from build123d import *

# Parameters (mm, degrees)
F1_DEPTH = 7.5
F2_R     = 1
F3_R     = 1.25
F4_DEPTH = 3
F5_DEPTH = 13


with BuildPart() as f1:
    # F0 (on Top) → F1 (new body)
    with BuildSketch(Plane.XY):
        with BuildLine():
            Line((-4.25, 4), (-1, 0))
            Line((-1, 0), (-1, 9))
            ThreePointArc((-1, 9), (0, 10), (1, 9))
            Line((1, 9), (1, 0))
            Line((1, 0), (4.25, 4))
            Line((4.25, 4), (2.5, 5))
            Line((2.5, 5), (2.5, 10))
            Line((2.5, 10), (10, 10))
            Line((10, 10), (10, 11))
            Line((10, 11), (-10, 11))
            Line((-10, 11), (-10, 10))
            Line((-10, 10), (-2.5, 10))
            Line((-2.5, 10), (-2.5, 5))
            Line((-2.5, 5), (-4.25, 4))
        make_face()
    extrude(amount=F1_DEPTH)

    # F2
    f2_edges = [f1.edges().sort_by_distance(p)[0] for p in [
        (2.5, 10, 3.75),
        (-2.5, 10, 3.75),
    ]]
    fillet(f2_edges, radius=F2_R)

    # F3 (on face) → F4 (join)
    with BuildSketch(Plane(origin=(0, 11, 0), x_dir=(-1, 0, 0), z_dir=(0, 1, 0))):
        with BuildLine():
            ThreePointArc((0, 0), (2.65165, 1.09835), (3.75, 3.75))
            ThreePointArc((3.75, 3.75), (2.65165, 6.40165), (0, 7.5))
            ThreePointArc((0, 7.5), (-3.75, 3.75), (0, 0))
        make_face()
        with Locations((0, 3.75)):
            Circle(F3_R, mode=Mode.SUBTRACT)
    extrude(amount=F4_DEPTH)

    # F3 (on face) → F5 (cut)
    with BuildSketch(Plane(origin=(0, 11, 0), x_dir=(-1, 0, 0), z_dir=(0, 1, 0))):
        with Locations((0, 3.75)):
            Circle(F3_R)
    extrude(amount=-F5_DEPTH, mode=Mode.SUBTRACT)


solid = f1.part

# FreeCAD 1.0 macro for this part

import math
import FreeCAD as App
import Part
import Sketcher

V = App.Vector


def edges_at(feature, points):
    """Names of the edges that pass closest to the given points."""
    edges = feature.Shape.Edges
    near = lambda p: min(range(len(edges)), key=lambda i: edges[i].distToShape(Part.Vertex(*p))[0])
    return sorted({f"Edge{near(p) + 1}" for p in points})

doc = App.newDocument("Part")
body = doc.addObject("PartDesign::Body", "Body")

sketch1 = body.newObject("Sketcher::SketchObject", "Sketch")
sketch1.AttachmentSupport = (doc.getObject("XY_Plane"), [""])
sketch1.MapMode = "FlatFace"
sketch1.addGeometry([
    Part.LineSegment(V(-4.2, 4, 0), V(-1, 0, 0)),
    Part.LineSegment(V(-1, 0, 0), V(-1, 9, 0)),
    Part.ArcOfCircle(Part.Circle(V(0, 9, 0), V(0, 0, 1), 1), math.radians(0), math.radians(180)),
    Part.LineSegment(V(1, 9, 0), V(1, 0, 0)),
    Part.LineSegment(V(1, 0, 0), V(4.2, 4, 0)),
    Part.LineSegment(V(4.2, 4, 0), V(2.5, 5, 0)),
    Part.LineSegment(V(2.5, 5, 0), V(2.5, 10, 0)),
    Part.LineSegment(V(2.5, 10, 0), V(10, 10, 0)),
    Part.LineSegment(V(10, 10, 0), V(10, 11, 0)),
    Part.LineSegment(V(10, 11, 0), V(-10, 11, 0)),
    Part.LineSegment(V(-10, 11, 0), V(-10, 10, 0)),
    Part.LineSegment(V(-10, 10, 0), V(-2.5, 10, 0)),
    Part.LineSegment(V(-2.5, 10, 0), V(-2.5, 5, 0)),
    Part.LineSegment(V(-2.5, 5, 0), V(-4.2, 4, 0)),
], False)
sketch1.addConstraint([
    Sketcher.Constraint("Coincident", 0, 2, 1, 1),
    Sketcher.Constraint("Tangent", 1, 2, 2, 2),
    Sketcher.Constraint("Tangent", 2, 1, 3, 1),
    Sketcher.Constraint("Coincident", 3, 2, 4, 1),
    Sketcher.Constraint("Coincident", 4, 2, 5, 1),
    Sketcher.Constraint("Coincident", 5, 2, 6, 1),
    Sketcher.Constraint("Coincident", 6, 2, 7, 1),
    Sketcher.Constraint("Coincident", 7, 2, 8, 1),
    Sketcher.Constraint("Coincident", 8, 2, 9, 1),
    Sketcher.Constraint("Coincident", 9, 2, 10, 1),
    Sketcher.Constraint("Coincident", 10, 2, 11, 1),
    Sketcher.Constraint("Coincident", 11, 2, 12, 1),
    Sketcher.Constraint("Coincident", 12, 2, 13, 1),
    Sketcher.Constraint("Coincident", 13, 2, 0, 1),
    Sketcher.Constraint("Vertical", 1),
    Sketcher.Constraint("Vertical", 3),
    Sketcher.Constraint("Vertical", 6),
    Sketcher.Constraint("Horizontal", 7),
    Sketcher.Constraint("Vertical", 8),
    Sketcher.Constraint("Horizontal", 9),
    Sketcher.Constraint("Vertical", 10),
    Sketcher.Constraint("Horizontal", 11),
    Sketcher.Constraint("Vertical", 12),
    Sketcher.Constraint("Symmetric", 0, 2, 3, 2, -1, 1),
    Sketcher.Constraint("Symmetric", 7, 2, 10, 2, -2),
    Sketcher.Constraint("Symmetric", 5, 2, 12, 2, -2),
    Sketcher.Constraint("Symmetric", 4, 2, 13, 2, -2),
    Sketcher.Constraint("PointOnObject", 0, 2, -1),
    Sketcher.Constraint("Radius", 2, 1.0),
    Sketcher.Constraint("DistanceX", 9, 2, 9, 1, 20.0),
    Sketcher.Constraint("DistanceY", 1, 1, 1, 2, 9.0),
    Sketcher.Constraint("DistanceY", 6, 1, 6, 2, 5.0),
    Sketcher.Constraint("DistanceY", 8, 1, 8, 2, 1.0),
    Sketcher.Constraint("DistanceX", 7, 1, 7, 2, 7.5),
    Sketcher.Constraint("DistanceY", -1, 1, 4, 2, 4.0),
    Sketcher.Constraint("DistanceY", -1, 1, 5, 2, 5.0),
    Sketcher.Constraint("DistanceX", -1, 1, 4, 2, 4.25),
])
pad1 = body.newObject("PartDesign::Pad", "Pad")
pad1.Profile = sketch1
pad1.Length = 7.5
doc.recompute()

fillet = body.newObject("PartDesign::Fillet", "Fillet")
fillet.Base = (pad1, edges_at(pad1, [(2.5, 10, 3.75), (-2.5, 10, 3.75)]))
fillet.Radius = 1

sketch2 = body.newObject("Sketcher::SketchObject", "Sketch001")
sketch2.AttachmentSupport = (doc.getObject("XZ_Plane"), [""])
sketch2.MapMode = "FlatFace"
sketch2.AttachmentOffset = App.Placement(V(0, 0, -11), App.Rotation())
sketch2.addGeometry([
    Part.ArcOfCircle(Part.Circle(V(0, 3.8, 0), V(0, 0, 1), 3.8), math.radians(-180), math.radians(-90)),
    Part.ArcOfCircle(Part.Circle(V(0, 3.7, 0), V(0, 0, 1), 3.8), math.radians(90), math.radians(180)),
    Part.ArcOfCircle(Part.Circle(V(0, 3.8, 0), V(0, 0, 1), 3.8), math.radians(-90), math.radians(90)),
    Part.Circle(V(0, 3.8, 0), V(0, 0, 1), 1.2),
], False)
sketch2.addConstraint([
    Sketcher.Constraint("Tangent", 0, 1, 1, 2),
    Sketcher.Constraint("Tangent", 1, 1, 2, 2),
    Sketcher.Constraint("Tangent", 2, 1, 0, 2),
    Sketcher.Constraint("Coincident", 2, 1, -1, 1),
    Sketcher.Constraint("Coincident", 3, 3, 0, 3),
    Sketcher.Constraint("PointOnObject", 0, 3, -2),
    Sketcher.Constraint("PointOnObject", 1, 1, -2),
    Sketcher.Constraint("Horizontal", 3, 3, 0, 1),
    Sketcher.Constraint("Diameter", 3, 2.5),
    Sketcher.Constraint("Radius", 0, 3.750001),
])
pad2 = body.newObject("PartDesign::Pad", "Pad001")
pad2.Profile = sketch2
pad2.Length = 3
pad2.Reversed = True

sketch3 = body.newObject("Sketcher::SketchObject", "Sketch002")
sketch3.AttachmentSupport = (doc.getObject("XZ_Plane"), [""])
sketch3.MapMode = "FlatFace"
sketch3.AttachmentOffset = App.Placement(V(0, 0, -11), App.Rotation())
sketch3.addGeometry(Part.Circle(V(0, 3.8, 0), V(0, 0, 1), 1.2), False)
sketch3.addConstraint([
    Sketcher.Constraint("PointOnObject", 0, 3, -2),
    Sketcher.Constraint("Diameter", 0, 2.5),
    Sketcher.Constraint("DistanceY", -1, 1, 0, 3, 3.75),
])
pocket1 = body.newObject("PartDesign::Pocket", "Pocket")
pocket1.Profile = sketch3
pocket1.Length = 13
pocket1.Reversed = True

doc.recompute()
